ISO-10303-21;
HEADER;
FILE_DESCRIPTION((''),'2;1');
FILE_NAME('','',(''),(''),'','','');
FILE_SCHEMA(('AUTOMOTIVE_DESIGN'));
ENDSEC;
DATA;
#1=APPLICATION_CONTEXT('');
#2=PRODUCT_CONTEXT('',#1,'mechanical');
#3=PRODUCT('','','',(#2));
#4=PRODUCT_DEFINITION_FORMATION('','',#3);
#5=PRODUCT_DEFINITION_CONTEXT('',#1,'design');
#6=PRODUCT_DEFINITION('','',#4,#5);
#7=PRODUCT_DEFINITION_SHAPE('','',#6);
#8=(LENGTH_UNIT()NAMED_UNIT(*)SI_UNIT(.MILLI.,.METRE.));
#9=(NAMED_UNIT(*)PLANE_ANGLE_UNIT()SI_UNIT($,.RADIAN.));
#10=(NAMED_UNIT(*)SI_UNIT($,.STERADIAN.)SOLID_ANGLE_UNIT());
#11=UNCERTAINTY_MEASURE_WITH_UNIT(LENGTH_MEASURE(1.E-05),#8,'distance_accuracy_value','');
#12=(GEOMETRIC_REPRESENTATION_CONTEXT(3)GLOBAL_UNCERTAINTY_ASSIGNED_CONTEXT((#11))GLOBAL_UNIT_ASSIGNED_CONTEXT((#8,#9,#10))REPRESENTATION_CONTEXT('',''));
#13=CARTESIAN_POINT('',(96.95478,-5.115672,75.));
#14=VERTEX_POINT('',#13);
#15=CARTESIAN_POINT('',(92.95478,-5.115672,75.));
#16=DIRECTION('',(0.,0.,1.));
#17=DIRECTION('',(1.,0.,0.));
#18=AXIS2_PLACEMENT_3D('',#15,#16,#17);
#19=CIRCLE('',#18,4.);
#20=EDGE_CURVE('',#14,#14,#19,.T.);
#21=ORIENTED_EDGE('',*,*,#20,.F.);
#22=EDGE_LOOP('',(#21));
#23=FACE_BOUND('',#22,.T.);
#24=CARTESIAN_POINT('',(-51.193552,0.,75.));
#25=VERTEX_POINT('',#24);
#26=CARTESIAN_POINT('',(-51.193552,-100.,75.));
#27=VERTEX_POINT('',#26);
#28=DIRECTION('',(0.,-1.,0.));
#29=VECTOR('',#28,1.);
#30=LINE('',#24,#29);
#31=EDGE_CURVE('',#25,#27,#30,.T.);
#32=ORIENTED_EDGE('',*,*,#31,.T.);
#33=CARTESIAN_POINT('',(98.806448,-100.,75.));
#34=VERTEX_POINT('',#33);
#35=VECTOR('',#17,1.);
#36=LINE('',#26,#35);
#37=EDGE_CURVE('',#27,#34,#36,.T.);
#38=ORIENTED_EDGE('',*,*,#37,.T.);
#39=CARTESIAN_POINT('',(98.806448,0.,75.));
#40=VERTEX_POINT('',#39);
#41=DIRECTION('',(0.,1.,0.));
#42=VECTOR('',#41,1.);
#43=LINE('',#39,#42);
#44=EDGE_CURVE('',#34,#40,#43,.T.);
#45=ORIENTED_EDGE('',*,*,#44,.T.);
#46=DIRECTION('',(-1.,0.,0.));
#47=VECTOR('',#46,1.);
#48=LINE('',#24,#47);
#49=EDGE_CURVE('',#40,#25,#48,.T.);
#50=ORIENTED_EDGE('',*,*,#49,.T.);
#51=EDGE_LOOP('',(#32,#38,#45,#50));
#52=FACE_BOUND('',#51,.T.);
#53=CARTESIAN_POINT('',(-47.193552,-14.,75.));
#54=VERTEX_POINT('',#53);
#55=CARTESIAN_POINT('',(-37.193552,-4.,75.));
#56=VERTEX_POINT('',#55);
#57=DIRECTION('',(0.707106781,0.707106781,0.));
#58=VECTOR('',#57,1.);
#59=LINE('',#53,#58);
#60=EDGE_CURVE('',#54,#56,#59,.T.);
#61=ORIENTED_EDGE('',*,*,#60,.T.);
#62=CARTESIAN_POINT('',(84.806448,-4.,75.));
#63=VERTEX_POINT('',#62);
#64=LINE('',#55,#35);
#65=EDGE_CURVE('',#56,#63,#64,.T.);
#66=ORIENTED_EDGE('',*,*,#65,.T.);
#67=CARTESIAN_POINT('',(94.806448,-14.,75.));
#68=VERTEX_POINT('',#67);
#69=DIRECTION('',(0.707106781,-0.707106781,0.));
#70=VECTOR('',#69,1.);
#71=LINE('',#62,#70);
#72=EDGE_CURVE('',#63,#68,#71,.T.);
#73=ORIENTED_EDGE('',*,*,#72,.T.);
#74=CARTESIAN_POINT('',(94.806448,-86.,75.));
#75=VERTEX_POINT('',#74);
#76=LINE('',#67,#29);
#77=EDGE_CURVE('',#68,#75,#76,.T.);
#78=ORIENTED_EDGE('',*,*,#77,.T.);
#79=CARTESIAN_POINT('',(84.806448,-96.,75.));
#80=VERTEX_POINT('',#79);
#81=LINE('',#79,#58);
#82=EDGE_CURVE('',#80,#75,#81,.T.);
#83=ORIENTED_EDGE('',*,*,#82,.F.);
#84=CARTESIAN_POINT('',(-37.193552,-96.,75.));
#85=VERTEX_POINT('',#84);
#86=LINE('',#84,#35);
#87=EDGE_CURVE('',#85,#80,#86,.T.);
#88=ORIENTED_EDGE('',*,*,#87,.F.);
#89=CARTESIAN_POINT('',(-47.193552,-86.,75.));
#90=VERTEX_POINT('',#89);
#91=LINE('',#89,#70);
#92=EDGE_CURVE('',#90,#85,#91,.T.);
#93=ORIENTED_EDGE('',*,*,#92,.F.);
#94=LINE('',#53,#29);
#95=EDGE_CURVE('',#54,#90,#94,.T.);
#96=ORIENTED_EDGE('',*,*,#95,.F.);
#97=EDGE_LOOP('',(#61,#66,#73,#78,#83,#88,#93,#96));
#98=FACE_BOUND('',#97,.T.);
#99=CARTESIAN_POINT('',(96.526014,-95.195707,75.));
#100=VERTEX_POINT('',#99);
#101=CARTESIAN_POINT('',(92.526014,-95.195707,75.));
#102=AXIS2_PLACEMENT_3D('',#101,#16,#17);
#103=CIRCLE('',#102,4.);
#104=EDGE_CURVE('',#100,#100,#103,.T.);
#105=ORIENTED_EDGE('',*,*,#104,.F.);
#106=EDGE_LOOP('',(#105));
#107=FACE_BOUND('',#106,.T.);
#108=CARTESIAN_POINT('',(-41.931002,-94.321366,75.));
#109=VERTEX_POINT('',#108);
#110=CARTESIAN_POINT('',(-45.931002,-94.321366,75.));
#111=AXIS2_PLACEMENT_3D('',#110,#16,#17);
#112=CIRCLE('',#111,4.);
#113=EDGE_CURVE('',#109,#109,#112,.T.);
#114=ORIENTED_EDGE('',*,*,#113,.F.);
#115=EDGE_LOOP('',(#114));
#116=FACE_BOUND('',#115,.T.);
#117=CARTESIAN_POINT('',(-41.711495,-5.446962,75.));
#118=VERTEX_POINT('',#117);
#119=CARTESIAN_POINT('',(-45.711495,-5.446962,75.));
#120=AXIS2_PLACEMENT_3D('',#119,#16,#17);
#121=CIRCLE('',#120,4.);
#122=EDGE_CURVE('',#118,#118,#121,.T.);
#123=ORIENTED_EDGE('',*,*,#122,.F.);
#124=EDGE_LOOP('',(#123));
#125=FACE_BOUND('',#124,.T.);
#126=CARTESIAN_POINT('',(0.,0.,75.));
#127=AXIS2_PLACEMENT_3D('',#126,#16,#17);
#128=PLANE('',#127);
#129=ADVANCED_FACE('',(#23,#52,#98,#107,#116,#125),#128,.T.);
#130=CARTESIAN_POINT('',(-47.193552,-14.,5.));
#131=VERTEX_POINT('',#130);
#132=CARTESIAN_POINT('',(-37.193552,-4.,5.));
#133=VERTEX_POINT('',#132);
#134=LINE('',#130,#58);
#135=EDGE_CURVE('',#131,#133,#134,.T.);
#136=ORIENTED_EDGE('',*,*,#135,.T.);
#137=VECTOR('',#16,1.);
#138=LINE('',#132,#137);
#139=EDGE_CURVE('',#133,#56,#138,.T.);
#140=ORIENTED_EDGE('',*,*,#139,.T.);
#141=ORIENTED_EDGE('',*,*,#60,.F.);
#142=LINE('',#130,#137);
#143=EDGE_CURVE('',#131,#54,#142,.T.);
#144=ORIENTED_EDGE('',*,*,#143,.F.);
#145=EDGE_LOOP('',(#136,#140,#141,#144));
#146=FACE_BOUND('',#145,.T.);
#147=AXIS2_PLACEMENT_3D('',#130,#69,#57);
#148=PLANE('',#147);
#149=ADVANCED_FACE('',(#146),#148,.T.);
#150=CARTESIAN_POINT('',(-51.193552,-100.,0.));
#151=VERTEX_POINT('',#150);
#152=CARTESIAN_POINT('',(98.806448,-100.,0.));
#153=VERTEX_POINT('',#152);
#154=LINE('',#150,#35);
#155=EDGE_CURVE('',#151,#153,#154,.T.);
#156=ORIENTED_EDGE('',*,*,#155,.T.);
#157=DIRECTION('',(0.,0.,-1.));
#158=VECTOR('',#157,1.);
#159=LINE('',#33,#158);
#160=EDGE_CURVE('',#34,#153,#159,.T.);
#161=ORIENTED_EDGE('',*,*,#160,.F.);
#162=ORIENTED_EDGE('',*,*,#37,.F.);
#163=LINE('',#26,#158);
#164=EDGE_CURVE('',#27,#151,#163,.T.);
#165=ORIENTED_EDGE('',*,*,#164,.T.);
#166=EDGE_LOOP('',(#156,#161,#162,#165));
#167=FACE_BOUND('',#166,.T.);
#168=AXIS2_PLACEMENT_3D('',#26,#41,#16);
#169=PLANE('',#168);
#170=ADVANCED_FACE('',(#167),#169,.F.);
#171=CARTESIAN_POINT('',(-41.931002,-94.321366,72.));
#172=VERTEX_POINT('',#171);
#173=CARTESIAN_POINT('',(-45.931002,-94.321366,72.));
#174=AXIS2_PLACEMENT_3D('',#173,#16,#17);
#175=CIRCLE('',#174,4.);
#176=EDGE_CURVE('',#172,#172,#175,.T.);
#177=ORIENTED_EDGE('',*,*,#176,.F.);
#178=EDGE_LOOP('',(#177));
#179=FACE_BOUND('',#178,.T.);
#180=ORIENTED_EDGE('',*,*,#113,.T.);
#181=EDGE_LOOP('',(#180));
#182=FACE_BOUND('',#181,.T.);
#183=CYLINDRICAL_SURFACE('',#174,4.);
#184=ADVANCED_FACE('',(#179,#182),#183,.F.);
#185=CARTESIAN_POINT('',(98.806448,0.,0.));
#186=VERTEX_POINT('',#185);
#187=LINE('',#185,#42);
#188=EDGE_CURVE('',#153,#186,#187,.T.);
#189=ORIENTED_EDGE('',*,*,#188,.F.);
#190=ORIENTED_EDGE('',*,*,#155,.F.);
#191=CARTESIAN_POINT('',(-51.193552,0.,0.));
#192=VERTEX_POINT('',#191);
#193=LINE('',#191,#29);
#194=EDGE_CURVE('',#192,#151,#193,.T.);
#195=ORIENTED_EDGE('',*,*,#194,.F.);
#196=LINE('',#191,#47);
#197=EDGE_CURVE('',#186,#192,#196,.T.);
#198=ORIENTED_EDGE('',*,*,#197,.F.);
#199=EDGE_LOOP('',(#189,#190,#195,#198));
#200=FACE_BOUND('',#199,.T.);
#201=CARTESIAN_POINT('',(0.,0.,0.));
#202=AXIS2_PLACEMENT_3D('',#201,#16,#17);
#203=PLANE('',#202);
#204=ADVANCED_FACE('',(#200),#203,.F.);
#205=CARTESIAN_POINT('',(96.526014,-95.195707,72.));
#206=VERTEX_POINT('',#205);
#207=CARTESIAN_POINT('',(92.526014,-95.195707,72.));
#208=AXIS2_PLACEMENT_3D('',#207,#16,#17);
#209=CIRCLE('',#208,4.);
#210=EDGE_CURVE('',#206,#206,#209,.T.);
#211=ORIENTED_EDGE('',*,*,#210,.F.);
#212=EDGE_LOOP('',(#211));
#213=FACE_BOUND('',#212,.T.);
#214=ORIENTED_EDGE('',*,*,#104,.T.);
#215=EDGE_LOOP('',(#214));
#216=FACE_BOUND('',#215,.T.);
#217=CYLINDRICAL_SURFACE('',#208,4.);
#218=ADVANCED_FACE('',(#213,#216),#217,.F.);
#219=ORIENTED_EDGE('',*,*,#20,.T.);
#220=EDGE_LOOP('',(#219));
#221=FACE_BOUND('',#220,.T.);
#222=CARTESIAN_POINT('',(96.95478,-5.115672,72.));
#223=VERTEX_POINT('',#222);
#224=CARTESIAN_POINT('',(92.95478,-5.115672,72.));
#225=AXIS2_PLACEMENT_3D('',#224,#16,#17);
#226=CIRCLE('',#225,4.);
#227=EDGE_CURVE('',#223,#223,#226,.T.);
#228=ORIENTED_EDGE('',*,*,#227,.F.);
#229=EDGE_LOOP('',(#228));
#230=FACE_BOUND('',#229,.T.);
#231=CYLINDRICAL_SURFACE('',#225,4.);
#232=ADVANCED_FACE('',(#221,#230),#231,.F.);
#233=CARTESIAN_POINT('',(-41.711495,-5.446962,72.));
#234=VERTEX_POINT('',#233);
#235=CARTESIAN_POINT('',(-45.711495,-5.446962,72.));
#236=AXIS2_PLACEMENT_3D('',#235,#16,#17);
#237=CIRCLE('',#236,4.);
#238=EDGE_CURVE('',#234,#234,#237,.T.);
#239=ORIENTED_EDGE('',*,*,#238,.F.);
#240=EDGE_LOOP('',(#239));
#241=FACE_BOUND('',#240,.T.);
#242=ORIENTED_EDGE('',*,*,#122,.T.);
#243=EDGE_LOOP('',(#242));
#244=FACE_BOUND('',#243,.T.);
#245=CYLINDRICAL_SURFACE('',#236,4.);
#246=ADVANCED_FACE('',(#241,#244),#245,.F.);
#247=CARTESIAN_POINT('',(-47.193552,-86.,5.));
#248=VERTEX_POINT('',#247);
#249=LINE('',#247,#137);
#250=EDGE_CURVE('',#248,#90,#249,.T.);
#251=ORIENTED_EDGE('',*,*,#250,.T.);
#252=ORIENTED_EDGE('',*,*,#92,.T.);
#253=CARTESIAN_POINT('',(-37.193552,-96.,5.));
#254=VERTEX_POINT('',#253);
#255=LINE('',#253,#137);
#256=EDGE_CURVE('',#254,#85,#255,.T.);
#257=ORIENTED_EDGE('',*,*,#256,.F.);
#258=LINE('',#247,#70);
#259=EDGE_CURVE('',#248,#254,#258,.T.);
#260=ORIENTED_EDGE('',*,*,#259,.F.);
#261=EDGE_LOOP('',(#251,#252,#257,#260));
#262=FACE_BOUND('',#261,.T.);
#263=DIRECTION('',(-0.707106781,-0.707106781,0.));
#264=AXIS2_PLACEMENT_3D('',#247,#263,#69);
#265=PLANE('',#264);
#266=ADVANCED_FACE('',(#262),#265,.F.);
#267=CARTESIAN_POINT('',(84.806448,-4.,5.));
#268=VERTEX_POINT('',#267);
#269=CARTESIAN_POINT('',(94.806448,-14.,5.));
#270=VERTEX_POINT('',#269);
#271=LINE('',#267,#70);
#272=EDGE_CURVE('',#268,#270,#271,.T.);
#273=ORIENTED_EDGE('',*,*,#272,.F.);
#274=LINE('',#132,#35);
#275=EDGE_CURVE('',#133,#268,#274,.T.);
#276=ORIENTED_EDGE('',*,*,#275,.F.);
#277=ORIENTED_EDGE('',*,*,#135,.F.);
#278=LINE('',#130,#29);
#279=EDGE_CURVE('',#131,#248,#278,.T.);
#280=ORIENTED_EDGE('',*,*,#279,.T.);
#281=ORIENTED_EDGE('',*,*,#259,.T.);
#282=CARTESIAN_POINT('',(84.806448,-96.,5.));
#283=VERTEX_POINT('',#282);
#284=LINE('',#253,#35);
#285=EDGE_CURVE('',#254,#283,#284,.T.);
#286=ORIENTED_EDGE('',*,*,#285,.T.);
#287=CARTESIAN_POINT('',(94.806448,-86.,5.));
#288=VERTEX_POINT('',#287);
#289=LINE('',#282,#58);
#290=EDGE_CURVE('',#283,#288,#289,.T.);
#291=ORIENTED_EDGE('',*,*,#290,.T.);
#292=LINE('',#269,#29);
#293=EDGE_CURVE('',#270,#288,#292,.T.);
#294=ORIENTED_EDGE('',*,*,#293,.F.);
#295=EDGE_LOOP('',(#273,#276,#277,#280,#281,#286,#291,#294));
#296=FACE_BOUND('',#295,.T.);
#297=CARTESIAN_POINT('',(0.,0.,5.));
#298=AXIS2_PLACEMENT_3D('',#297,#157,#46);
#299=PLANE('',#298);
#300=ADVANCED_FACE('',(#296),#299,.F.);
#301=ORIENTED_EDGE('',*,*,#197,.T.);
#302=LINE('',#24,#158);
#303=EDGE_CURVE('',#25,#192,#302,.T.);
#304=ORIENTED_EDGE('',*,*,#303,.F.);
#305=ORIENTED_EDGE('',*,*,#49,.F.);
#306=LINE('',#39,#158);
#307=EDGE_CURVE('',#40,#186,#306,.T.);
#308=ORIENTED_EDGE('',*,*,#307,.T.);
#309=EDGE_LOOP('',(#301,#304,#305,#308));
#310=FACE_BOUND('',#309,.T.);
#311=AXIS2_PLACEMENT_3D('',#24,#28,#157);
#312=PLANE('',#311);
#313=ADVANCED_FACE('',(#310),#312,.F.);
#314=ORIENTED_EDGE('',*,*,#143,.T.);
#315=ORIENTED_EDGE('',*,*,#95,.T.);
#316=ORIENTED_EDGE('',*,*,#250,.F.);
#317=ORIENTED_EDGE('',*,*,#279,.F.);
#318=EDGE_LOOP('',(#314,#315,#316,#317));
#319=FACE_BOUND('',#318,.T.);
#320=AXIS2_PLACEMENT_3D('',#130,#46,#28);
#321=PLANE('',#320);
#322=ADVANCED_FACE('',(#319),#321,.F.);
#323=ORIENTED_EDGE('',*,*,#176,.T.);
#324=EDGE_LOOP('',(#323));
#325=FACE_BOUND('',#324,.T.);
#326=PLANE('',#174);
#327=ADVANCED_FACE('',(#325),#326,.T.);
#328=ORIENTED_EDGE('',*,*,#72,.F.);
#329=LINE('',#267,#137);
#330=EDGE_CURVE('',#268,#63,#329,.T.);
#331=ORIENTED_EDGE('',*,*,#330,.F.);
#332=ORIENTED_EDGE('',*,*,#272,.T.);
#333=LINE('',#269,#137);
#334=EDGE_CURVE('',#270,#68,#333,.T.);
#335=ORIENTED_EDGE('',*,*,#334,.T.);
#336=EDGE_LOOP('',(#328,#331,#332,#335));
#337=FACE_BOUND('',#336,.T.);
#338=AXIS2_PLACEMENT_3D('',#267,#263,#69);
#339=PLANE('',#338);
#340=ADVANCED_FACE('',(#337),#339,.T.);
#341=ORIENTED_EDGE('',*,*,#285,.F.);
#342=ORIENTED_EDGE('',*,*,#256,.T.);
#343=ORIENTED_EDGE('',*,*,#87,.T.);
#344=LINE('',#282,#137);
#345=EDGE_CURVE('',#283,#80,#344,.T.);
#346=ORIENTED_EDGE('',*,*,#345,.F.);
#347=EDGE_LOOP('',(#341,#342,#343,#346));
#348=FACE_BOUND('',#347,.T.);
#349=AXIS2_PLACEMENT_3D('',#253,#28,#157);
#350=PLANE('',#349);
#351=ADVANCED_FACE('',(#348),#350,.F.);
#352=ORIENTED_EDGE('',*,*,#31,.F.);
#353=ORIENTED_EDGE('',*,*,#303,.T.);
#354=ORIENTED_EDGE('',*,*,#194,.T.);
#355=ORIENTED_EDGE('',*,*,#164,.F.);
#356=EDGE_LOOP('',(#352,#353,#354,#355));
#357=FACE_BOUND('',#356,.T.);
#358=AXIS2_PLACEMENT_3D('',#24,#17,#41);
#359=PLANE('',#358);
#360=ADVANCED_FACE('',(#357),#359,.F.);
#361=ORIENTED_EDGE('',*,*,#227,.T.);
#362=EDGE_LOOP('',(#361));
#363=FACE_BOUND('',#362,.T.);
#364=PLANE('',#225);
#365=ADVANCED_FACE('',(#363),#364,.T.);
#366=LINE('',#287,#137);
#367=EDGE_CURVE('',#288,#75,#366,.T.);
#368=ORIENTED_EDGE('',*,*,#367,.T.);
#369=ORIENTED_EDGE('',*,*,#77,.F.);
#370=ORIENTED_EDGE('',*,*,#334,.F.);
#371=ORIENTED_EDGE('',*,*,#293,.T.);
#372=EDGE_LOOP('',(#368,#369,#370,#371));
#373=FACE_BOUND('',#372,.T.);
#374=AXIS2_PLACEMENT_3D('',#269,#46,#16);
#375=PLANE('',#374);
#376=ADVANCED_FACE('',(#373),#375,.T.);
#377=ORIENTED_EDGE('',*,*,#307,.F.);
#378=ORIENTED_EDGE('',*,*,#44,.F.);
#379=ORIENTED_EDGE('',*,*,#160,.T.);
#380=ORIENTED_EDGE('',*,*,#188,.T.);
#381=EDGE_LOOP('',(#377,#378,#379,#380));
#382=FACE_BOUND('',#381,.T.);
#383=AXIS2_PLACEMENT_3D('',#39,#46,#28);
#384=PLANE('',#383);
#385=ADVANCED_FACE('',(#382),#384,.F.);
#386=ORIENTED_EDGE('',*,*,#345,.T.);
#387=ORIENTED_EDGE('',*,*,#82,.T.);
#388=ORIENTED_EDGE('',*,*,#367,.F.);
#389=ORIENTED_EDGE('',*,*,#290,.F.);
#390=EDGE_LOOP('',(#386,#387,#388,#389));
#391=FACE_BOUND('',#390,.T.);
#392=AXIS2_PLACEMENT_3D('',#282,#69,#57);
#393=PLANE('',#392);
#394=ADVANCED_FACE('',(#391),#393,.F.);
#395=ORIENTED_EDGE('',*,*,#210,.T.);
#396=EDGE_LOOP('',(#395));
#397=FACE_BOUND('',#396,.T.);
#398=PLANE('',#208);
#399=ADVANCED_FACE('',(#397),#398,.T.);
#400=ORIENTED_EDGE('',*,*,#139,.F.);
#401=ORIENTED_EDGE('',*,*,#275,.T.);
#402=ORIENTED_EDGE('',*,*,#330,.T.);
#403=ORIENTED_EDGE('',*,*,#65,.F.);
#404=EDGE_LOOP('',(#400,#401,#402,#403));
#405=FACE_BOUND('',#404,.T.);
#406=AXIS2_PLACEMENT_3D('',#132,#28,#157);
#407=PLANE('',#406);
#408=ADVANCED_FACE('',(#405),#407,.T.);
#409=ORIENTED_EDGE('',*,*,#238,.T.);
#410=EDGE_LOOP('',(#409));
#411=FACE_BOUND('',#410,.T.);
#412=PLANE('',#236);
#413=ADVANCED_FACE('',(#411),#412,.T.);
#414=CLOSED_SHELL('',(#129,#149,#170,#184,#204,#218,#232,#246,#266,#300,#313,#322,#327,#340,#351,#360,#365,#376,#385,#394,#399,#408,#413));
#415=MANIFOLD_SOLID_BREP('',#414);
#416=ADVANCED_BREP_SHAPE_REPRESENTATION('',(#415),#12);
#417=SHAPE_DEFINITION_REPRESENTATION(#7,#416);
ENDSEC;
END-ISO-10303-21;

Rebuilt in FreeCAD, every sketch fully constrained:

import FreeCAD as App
import Part
import Sketcher

V = App.Vector
Q = App.Units.Quantity


def add_polygon(sketch, points):
    """Adds a closed chain of lines whose ends are joined by coincident constraints."""
    first, n = sketch.GeometryCount, len(points)
    for a, b in zip(points, points[1:] + points[:1]):
        sketch.addGeometry(Part.LineSegment(App.Vector(*a, 0), App.Vector(*b, 0)), False)
    for i in range(n):
        sketch.addConstraint(Sketcher.Constraint("Coincident", first + i, 2, first + (i + 1) % n, 1))

doc = App.newDocument("Part")
body = doc.addObject("PartDesign::Body", "Body")

# Sketch on XY plane
sketch1 = doc.addObject("Sketcher::SketchObject", "Sketch")
body.addObject(sketch1)
sketch1.AttachmentSupport = (doc.XY_Plane, [""])
sketch1.MapMode = "FlatFace"
add_polygon(sketch1, [(-51, 0), (-51, -100), (99, -100), (99, 0)])  # lines 0-3
sketch1.addConstraint(Sketcher.Constraint("Vertical", 0))
sketch1.addConstraint(Sketcher.Constraint("Horizontal", 1))
sketch1.addConstraint(Sketcher.Constraint("Vertical", 2))
sketch1.addConstraint(Sketcher.Constraint("Horizontal", 3))
sketch1.addConstraint(Sketcher.Constraint("PointOnObject", 2, 2, -1))
sketch1.addConstraint(Sketcher.Constraint("DistanceX", 1, 1, 1, 2, Q("150 mm")))
sketch1.addConstraint(Sketcher.Constraint("DistanceY", 0, 2, 0, 1, Q("100 mm")))
sketch1.addConstraint(Sketcher.Constraint("DistanceX", 0, 2, -1, 1, Q("51.193552 mm")))
pad1 = doc.addObject("PartDesign::Pad", "Pad")
body.addObject(pad1)
pad1.Profile = sketch1
pad1.Length = 75

# Sketch on XY plane
sketch2 = doc.addObject("Sketcher::SketchObject", "Sketch001")
body.addObject(sketch2)
sketch2.AttachmentSupport = (doc.XY_Plane, [""])
sketch2.MapMode = "FlatFace"
sketch2.AttachmentOffset = App.Placement(V(0, 0, 75), App.Rotation())
add_polygon(sketch2, [(85, -4), (-37, -4), (-47, -14), (-47, -86), (-37, -96), (85, -96), (95, -86), (95, -14)])  # lines 0-7
sketch2.addConstraint(Sketcher.Constraint("Horizontal", 0))
sketch2.addConstraint(Sketcher.Constraint("Vertical", 2))
sketch2.addConstraint(Sketcher.Constraint("Horizontal", 4))
sketch2.addConstraint(Sketcher.Constraint("Vertical", 6))
sketch2.addConstraint(Sketcher.Constraint("Perpendicular", 1, 3))
sketch2.addConstraint(Sketcher.Constraint("Perpendicular", 3, 5))
sketch2.addConstraint(Sketcher.Constraint("Perpendicular", 5, 7))
sketch2.addConstraint(Sketcher.Constraint("Horizontal", 2, 2, 5, 2))
sketch2.addConstraint(Sketcher.Constraint("Horizontal", 1, 2, 6, 2))
sketch2.addConstraint(Sketcher.Constraint("Vertical", 0, 2, 3, 2))
sketch2.addConstraint(Sketcher.Constraint("Vertical", 4, 2, 7, 2))
sketch2.addConstraint(Sketcher.Constraint("DistanceX", 0, 2, 0, 1, Q("122 mm")))
sketch2.addConstraint(Sketcher.Constraint("DistanceY", 2, 2, 2, 1, Q("72 mm")))
sketch2.addConstraint(Sketcher.Constraint("DistanceY", 0, 2, -1, 1, Q("4 mm")))
sketch2.addConstraint(Sketcher.Constraint("DistanceY", 1, 2, -1, 1, Q("14 mm")))
sketch2.addConstraint(Sketcher.Constraint("DistanceX", 0, 2, -1, 1, Q("37.193552 mm")))
pocket1 = doc.addObject("PartDesign::Pocket", "Pocket")
body.addObject(pocket1)
pocket1.Profile = sketch2
pocket1.Length = 70

# Sketch on XY plane
sketch3 = doc.addObject("Sketcher::SketchObject", "Sketch002")
body.addObject(sketch3)
sketch3.AttachmentSupport = (doc.XY_Plane, [""])
sketch3.MapMode = "FlatFace"
sketch3.AttachmentOffset = App.Placement(V(0, 0, 75), App.Rotation())
sketch3.addGeometry(Part.Circle(V(-45.7, -5.4, 0), V(0, 0, 1), 4), False)
sketch3.addConstraint(Sketcher.Constraint("Diameter", 0, Q("8 mm")))
sketch3.addConstraint(Sketcher.Constraint("DistanceX", 0, 3, -1, 1, Q("45.711495 mm")))
sketch3.addConstraint(Sketcher.Constraint("DistanceY", 0, 3, -1, 1, Q("5.446962 mm")))
pocket2 = doc.addObject("PartDesign::Pocket", "Pocket001")
body.addObject(pocket2)
pocket2.Profile = sketch3
pocket2.Length = 3

# Sketch on XY plane
sketch4 = doc.addObject("Sketcher::SketchObject", "Sketch003")
body.addObject(sketch4)
sketch4.AttachmentSupport = (doc.XY_Plane, [""])
sketch4.MapMode = "FlatFace"
sketch4.AttachmentOffset = App.Placement(V(0, 0, 75), App.Rotation())
sketch4.addGeometry(Part.Circle(V(93, -5.1, 0), V(0, 0, 1), 4), False)
sketch4.addGeometry(Part.Circle(V(92.5, -95.2, 0), V(0, 0, 1), 4), False)
sketch4.addGeometry(Part.Circle(V(-45.9, -94.3, 0), V(0, 0, 1), 4), False)
sketch4.addConstraint(Sketcher.Constraint("Equal", 0, 1))
sketch4.addConstraint(Sketcher.Constraint("Equal", 1, 2))
sketch4.addConstraint(Sketcher.Constraint("Diameter", 0, Q("8 mm")))
sketch4.addConstraint(Sketcher.Constraint("DistanceX", 2, 3, -1, 1, Q("45.931002 mm")))
sketch4.addConstraint(Sketcher.Constraint("DistanceX", -1, 1, 0, 3, Q("92.95478 mm")))
sketch4.addConstraint(Sketcher.Constraint("DistanceY", 0, 3, -1, 1, Q("5.115672 mm")))
sketch4.addConstraint(Sketcher.Constraint("DistanceY", 1, 3, 2, 3, Q("0.874341 mm")))
sketch4.addConstraint(Sketcher.Constraint("DistanceX", -1, 1, 1, 3, Q("92.526014 mm")))
sketch4.addConstraint(Sketcher.Constraint("DistanceY", 1, 3, -1, 1, Q("95.195707 mm")))
pocket3 = doc.addObject("PartDesign::Pocket", "Pocket002")
body.addObject(pocket3)
pocket3.Profile = sketch4
pocket3.Length = 3

doc.recompute()
